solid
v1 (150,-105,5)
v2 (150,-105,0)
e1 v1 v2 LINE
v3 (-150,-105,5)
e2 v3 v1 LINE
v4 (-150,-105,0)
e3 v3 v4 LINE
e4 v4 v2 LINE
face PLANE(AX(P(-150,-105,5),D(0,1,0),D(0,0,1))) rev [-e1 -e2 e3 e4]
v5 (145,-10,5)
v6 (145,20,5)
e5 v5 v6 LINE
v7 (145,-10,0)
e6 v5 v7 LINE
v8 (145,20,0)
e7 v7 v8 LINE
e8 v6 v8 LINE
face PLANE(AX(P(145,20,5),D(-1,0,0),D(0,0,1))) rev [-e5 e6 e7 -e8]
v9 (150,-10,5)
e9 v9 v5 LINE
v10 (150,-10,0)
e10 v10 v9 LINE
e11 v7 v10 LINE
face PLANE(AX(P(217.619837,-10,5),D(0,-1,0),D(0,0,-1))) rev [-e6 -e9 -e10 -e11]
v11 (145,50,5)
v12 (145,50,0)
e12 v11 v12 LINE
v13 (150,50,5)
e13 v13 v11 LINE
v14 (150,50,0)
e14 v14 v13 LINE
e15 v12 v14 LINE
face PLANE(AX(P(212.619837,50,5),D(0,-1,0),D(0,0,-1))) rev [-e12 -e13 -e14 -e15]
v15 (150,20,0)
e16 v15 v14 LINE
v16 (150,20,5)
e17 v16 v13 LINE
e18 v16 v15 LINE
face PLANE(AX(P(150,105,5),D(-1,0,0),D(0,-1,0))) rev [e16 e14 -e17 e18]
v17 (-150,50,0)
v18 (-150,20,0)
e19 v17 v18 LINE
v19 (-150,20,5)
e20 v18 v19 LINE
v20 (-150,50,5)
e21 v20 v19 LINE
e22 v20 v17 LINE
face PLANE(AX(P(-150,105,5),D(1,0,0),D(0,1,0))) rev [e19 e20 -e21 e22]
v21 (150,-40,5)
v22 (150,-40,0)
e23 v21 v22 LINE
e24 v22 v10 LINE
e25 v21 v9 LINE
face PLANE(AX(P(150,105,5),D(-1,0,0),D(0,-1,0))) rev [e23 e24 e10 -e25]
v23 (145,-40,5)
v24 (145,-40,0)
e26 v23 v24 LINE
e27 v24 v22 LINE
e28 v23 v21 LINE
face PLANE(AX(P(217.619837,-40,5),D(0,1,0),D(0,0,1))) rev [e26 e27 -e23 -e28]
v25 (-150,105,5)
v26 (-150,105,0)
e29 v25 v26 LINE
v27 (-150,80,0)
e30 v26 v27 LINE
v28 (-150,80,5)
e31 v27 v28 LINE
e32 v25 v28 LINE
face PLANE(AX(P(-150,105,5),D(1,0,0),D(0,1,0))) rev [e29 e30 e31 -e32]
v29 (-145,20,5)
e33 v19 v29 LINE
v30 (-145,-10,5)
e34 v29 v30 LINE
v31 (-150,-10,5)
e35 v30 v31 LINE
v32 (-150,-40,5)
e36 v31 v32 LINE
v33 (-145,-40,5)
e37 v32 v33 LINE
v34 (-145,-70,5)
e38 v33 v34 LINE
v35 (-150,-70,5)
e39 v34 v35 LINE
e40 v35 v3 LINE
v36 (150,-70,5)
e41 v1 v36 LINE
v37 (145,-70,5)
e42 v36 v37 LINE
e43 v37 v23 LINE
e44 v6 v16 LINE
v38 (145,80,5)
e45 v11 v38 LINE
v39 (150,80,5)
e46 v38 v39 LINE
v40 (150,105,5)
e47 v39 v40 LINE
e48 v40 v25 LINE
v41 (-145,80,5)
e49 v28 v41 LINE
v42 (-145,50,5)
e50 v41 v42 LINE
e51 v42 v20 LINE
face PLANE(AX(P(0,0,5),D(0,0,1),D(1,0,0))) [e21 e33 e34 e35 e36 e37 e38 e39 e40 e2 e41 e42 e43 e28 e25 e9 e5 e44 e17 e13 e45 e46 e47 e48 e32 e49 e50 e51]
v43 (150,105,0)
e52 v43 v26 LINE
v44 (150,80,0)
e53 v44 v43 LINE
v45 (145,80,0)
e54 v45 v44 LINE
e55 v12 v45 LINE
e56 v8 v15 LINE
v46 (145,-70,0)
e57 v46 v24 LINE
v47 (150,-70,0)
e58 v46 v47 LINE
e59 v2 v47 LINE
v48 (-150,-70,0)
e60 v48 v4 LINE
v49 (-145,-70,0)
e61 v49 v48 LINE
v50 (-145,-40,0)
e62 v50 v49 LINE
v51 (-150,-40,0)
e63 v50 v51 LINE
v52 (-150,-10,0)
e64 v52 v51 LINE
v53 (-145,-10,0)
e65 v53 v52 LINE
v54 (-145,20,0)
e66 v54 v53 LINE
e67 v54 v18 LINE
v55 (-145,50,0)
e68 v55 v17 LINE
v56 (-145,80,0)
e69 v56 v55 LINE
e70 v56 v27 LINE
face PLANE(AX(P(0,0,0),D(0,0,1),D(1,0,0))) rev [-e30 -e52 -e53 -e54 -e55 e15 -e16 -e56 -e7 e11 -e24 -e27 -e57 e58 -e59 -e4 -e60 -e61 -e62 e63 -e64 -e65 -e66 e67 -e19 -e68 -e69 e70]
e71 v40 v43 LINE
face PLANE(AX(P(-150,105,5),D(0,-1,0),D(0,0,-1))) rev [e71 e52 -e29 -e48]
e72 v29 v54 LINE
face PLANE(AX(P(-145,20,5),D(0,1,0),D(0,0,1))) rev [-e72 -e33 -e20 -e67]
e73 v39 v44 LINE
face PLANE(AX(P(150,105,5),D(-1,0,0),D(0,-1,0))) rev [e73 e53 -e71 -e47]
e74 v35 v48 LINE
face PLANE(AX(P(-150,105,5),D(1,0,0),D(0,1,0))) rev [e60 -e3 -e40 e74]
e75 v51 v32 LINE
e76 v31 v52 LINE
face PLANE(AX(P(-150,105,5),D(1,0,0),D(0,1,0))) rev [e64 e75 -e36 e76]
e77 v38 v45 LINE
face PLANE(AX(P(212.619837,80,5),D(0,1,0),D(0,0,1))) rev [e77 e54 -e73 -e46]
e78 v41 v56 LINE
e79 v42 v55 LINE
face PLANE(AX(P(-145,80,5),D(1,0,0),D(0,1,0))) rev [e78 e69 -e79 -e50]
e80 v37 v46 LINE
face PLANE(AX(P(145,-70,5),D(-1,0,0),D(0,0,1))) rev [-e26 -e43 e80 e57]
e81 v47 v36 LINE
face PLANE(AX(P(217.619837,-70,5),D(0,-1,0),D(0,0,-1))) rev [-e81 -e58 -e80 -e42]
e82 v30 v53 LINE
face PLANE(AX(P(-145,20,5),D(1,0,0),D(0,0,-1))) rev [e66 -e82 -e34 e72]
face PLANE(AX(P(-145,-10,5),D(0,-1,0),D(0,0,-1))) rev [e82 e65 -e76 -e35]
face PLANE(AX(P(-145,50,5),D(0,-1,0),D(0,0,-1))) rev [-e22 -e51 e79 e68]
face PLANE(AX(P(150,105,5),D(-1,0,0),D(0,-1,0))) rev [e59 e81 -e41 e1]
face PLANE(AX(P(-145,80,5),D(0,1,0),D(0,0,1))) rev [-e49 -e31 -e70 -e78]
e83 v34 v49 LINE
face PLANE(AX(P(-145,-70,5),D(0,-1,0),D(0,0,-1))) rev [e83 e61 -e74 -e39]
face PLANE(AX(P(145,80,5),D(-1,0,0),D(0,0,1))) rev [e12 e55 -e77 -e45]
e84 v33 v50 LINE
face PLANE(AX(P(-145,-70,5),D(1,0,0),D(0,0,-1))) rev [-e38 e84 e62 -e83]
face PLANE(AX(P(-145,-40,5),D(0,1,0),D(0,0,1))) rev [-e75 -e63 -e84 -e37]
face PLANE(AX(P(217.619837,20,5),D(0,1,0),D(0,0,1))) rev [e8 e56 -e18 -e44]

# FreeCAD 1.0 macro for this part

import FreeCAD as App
import Part
import Sketcher
from FreeCAD import Vector
Q = App.Units.Quantity


def add_polygon(sketch, points):
    """Adds a closed chain of lines whose ends are joined by coincident constraints."""
    first, n = sketch.GeometryCount, len(points)
    for a, b in zip(points, points[1:] + points[:1]):
        sketch.addGeometry(Part.LineSegment(App.Vector(*a, 0), App.Vector(*b, 0)), False)
    for i in range(n):
        sketch.addConstraint(Sketcher.Constraint("Coincident", first + i, 2, first + (i + 1) % n, 1))

doc = App.newDocument("Part")
body = doc.addObject("PartDesign::Body", "Body")

# Sketch on XY plane
sketch1 = doc.addObject("Sketcher::SketchObject", "Sketch")
body.addObject(sketch1)
sketch1.AttachmentSupport = (doc.XY_Plane, [""])
sketch1.MapMode = "FlatFace"
add_polygon(sketch1, [(-150, 105), (-150, -105), (150, -105), (150, 105)])  # lines 0-3
sketch1.addConstraint([
    Sketcher.Constraint("Vertical", 0),
    Sketcher.Constraint("Horizontal", 1),
    Sketcher.Constraint("Vertical", 2),
    Sketcher.Constraint("Horizontal", 3),
    Sketcher.Constraint("Symmetric", 0, 2, 2, 2, -1, 1),
    Sketcher.Constraint("DistanceX", 1, 1, 1, 2, Q("300 mm")),
    Sketcher.Constraint("DistanceY", 0, 2, 0, 1, Q("210 mm")),
])
pad1 = doc.addObject("PartDesign::Pad", "Pad")
body.addObject(pad1)
pad1.Profile = sketch1
pad1.Length = 5

# Sketch on XY plane
sketch2 = doc.addObject("Sketcher::SketchObject", "Sketch001")
body.addObject(sketch2)
sketch2.AttachmentSupport = (doc.XY_Plane, [""])
sketch2.MapMode = "FlatFace"
add_polygon(sketch2, [(212.619837, 80), (212.619837, 50), (145, 50), (145, 80)])  # lines 0-3
add_polygon(sketch2, [(217.619837, 20), (217.619837, -10), (145, -10), (145, 20)])  # lines 4-7
add_polygon(sketch2, [(217.619837, -40), (217.619837, -70), (145, -70), (145, -40)])  # lines 8-11
add_polygon(sketch2, [(-145, 80), (-145, 50), (-198.212614, 50), (-198.212614, 80)])  # lines 12-15
add_polygon(sketch2, [(-145, 20), (-145, -10), (-217.619837, -10), (-217.619837, 20)])  # lines 16-19
add_polygon(sketch2, [(-145, -40), (-145, -70), (-217.619837, -70), (-217.619837, -40)])  # lines 20-23
sketch2.addConstraint([
    Sketcher.Constraint("Vertical", 0),
    Sketcher.Constraint("Horizontal", 1),
    Sketcher.Constraint("Vertical", 2),
    Sketcher.Constraint("Horizontal", 3),
    Sketcher.Constraint("Vertical", 4),
    Sketcher.Constraint("Horizontal", 5),
    Sketcher.Constraint("Vertical", 6),
    Sketcher.Constraint("Horizontal", 7),
    Sketcher.Constraint("Vertical", 8),
    Sketcher.Constraint("Horizontal", 9),
    Sketcher.Constraint("Vertical", 10),
    Sketcher.Constraint("Horizontal", 11),
    Sketcher.Constraint("Vertical", 12),
    Sketcher.Constraint("Horizontal", 13),
    Sketcher.Constraint("Vertical", 14),
    Sketcher.Constraint("Horizontal", 15),
    Sketcher.Constraint("Vertical", 16),
    Sketcher.Constraint("Horizontal", 17),
    Sketcher.Constraint("Vertical", 18),
    Sketcher.Constraint("Horizontal", 19),
    Sketcher.Constraint("Vertical", 20),
    Sketcher.Constraint("Horizontal", 21),
    Sketcher.Constraint("Vertical", 22),
    Sketcher.Constraint("Horizontal", 23),
    Sketcher.Constraint("Symmetric", 1, 2, 12, 2, -2),
    Sketcher.Constraint("Symmetric", 5, 2, 16, 2, -2),
    Sketcher.Constraint("Symmetric", 7, 2, 18, 2, -2),
    Sketcher.Constraint("Symmetric", 9, 2, 20, 2, -2),
    Sketcher.Constraint("Symmetric", 11, 2, 22, 2, -2),
    Sketcher.Constraint("Horizontal", 3, 2, 14, 2),
    Sketcher.Constraint("Vertical", 2, 2, 5, 2),
    Sketcher.Constraint("Vertical", 7, 2, 8, 2),
    Sketcher.Constraint("Vertical", 6, 2, 9, 2),
    Sketcher.Constraint("Equal", 2, 4),
    Sketcher.Constraint("Equal", 6, 8),
    Sketcher.Constraint("DistanceY", 0, 2, 0, 1, Q("30 mm")),
    Sketcher.Constraint("DistanceY", -1, 1, 0, 2, Q("50 mm")),
    Sketcher.Constraint("DistanceX", -1, 1, 1, 2, Q("145 mm")),
    Sketcher.Constraint("DistanceY", 4, 2, -1, 1, Q("10 mm")),
    Sketcher.Constraint("DistanceY", 8, 2, -1, 1, Q("70 mm")),
    Sketcher.Constraint("DistanceX", 0, 2, 4, 2, Q("5 mm")),
    Sketcher.Constraint("DistanceX", 1, 2, 1, 1, Q("67.619837 mm")),
    Sketcher.Constraint("DistanceX", 13, 2, 13, 1, Q("53.212614 mm")),
])
pocket1 = doc.addObject("PartDesign::Pocket", "Pocket")
body.addObject(pocket1)
pocket1.Profile = sketch2
pocket1.Type = "ThroughAll"
pocket1.Reversed = True

doc.recompute()
